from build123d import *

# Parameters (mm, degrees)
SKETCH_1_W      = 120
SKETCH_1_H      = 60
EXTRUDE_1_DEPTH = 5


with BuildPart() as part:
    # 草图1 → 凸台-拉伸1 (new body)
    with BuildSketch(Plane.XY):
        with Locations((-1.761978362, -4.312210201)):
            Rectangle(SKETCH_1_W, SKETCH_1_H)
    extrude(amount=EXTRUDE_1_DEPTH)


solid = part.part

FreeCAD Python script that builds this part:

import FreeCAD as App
import Part
import Sketcher


def add_polygon(sketch, points):
    """Adds a closed chain of lines whose ends are joined by coincident constraints."""
    first, n = sketch.GeometryCount, len(points)
    for a, b in zip(points, points[1:] + points[:1]):
        sketch.addGeometry(Part.LineSegment(App.Vector(*a, 0), App.Vector(*b, 0)), False)
    for i in range(n):
        sketch.addConstraint(Sketcher.Constraint("Coincident", first + i, 2, first + (i + 1) % n, 1))

doc = App.newDocument("Part")
params = doc.addObject("Spreadsheet::Sheet", "Params")
for row, (alias, value) in enumerate([
    ("sketch1_width", "120 mm"),
    ("sketch1_height", "60 mm"),
    ("pad1_length", "5 mm"),
], start=1):
    params.set(f"A{row}", alias)
    params.set(f"B{row}", "=" + value)
    params.setAlias(f"B{row}", alias)

body = doc.addObject("PartDesign::Body", "Body")

# Sketch on XY plane
sketch1 = body.newObject("Sketcher::SketchObject", "Sketch")
sketch1.AttachmentSupport = (doc.getObject("XY_Plane"), [""])
sketch1.MapMode = "FlatFace"
add_polygon(sketch1, [(-62, 26), (-62, -34), (58, -34), (58, 26)])  # lines 0-3
sketch1.addConstraint([
    Sketcher.Constraint("Vertical", 0),
    Sketcher.Constraint("Horizontal", 1),
    Sketcher.Constraint("Vertical", 2),
    Sketcher.Constraint("Horizontal", 3),
    Sketcher.Constraint("DistanceX", 1, 1, 1, 2, 120.0),
    Sketcher.Constraint("DistanceY", 0, 2, 0, 1, 60.0),
    Sketcher.Constraint("DistanceX", 0, 2, -1, 1, 61.761978),
    Sketcher.Constraint("DistanceY", 0, 2, -1, 1, 34.31221),
])
sketch1.setExpression("Constraints[8]", "Params.sketch1_width")
sketch1.setExpression("Constraints[9]", "Params.sketch1_height")
pad1 = body.newObject("PartDesign::Pad", "Pad")
pad1.Profile = sketch1
pad1.setExpression("Length", "Params.pad1_length")

doc.recompute()
